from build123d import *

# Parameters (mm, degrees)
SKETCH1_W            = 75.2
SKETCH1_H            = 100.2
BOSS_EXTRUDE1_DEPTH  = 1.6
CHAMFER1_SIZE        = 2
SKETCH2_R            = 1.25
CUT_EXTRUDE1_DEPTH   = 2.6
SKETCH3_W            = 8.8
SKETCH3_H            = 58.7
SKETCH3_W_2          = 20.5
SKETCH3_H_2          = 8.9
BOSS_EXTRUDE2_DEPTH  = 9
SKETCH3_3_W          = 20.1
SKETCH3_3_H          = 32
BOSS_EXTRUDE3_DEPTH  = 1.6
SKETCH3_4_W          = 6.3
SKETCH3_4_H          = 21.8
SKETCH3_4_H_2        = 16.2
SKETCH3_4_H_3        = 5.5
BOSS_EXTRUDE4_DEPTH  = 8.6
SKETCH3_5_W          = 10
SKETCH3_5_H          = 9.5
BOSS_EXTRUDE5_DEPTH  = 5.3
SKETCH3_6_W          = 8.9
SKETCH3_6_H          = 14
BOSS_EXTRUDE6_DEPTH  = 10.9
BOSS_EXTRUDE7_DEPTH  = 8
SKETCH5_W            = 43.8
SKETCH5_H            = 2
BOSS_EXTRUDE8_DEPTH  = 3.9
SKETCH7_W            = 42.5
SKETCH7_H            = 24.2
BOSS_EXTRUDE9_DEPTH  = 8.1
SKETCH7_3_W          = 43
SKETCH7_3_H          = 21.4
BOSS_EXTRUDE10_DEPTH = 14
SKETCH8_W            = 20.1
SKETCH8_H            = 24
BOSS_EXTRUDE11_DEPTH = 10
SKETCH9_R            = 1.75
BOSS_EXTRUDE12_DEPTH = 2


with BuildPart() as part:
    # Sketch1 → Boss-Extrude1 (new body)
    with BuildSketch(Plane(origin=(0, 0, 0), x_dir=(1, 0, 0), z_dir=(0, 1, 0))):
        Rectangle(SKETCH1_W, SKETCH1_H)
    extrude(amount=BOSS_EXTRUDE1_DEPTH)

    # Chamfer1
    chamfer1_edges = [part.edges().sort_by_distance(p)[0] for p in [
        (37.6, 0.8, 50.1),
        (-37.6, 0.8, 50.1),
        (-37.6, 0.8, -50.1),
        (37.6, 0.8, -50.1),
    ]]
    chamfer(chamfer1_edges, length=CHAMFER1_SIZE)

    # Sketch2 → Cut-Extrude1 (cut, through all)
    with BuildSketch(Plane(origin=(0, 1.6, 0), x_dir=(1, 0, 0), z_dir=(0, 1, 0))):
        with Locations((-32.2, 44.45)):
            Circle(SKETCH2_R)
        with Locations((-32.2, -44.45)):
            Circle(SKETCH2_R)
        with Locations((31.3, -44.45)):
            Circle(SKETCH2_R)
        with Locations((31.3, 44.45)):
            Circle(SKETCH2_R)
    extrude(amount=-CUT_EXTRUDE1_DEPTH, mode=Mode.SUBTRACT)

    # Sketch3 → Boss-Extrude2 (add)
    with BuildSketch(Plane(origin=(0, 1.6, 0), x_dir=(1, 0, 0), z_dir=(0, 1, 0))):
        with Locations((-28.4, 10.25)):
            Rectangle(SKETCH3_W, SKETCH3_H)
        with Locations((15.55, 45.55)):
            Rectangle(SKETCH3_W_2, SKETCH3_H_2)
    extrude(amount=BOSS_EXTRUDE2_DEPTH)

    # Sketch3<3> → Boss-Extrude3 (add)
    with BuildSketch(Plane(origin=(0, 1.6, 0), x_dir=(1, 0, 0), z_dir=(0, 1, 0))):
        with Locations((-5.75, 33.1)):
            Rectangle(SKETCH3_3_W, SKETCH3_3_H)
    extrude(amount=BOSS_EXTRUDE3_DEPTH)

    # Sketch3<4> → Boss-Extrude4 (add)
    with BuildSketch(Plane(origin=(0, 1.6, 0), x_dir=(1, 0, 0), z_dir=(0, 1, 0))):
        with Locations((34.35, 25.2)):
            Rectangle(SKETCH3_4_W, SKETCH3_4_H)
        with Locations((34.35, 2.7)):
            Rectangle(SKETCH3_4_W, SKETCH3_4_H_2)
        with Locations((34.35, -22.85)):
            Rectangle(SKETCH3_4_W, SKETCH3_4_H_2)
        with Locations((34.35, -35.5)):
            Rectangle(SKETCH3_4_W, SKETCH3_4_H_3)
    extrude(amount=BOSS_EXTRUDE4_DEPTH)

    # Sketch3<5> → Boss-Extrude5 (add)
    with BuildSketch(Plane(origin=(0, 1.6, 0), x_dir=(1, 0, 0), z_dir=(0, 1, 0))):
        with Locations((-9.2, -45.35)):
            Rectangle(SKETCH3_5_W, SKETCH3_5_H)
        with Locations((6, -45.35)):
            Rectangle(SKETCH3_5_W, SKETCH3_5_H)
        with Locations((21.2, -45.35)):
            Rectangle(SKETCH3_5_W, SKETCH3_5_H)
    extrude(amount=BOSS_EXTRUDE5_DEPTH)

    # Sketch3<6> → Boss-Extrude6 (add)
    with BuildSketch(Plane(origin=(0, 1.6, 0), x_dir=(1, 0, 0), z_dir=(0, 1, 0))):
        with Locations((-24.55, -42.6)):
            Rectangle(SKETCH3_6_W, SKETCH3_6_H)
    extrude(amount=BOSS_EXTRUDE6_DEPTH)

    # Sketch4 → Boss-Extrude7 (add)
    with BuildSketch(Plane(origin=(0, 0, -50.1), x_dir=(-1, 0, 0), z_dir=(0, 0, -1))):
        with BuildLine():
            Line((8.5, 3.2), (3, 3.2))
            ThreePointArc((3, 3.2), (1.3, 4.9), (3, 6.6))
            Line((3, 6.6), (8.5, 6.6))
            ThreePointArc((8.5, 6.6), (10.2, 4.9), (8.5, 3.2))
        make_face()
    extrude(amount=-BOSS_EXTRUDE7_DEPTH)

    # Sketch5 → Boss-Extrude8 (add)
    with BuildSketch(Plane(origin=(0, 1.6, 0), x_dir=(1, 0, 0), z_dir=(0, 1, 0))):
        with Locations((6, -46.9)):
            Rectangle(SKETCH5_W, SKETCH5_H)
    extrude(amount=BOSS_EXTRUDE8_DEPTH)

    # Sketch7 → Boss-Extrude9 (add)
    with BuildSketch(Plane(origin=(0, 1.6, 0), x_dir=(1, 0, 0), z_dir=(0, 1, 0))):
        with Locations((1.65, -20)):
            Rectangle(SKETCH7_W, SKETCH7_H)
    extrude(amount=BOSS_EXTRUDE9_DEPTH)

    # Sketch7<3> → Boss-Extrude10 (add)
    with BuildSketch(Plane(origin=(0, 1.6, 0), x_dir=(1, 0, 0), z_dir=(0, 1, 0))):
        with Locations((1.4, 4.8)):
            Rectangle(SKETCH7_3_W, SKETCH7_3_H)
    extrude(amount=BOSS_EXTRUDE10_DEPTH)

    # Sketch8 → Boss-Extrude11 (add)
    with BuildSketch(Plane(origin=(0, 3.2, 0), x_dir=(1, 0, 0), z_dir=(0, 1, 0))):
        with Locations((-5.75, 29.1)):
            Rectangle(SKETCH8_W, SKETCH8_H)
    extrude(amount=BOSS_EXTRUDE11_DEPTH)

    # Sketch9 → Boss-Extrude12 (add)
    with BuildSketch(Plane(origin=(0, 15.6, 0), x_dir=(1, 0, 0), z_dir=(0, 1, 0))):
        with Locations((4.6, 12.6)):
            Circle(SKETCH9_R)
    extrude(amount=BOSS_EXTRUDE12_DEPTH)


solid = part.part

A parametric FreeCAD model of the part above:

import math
import FreeCAD as App
import Part
import Sketcher

V = App.Vector
Q = App.Units.Quantity


def edges_at(feature, points):
    """Names of the edges that pass closest to the given points."""
    edges = feature.Shape.Edges
    near = lambda p: min(range(len(edges)), key=lambda i: edges[i].distToShape(Part.Vertex(*p))[0])
    return sorted({f"Edge{near(p) + 1}" for p in points})

doc = App.newDocument("Part")
body = doc.addObject("PartDesign::Body", "Body")

sketch1 = doc.addObject("Sketcher::SketchObject", "Sketch")
body.addObject(sketch1)
sketch1.AttachmentSupport = (doc.XZ_Plane, [""])
sketch1.MapMode = "FlatFace"
sketch1.addGeometry([
    Part.LineSegment(V(-38, -50, 0), V(-38, 50, 0)),
    Part.LineSegment(V(-38, 50, 0), V(38, 50, 0)),
    Part.LineSegment(V(38, 50, 0), V(38, -50, 0)),
    Part.LineSegment(V(38, -50, 0), V(-38, -50, 0)),
], False)
sketch1.addConstraint([
    Sketcher.Constraint("Coincident", 0, 2, 1, 1),
    Sketcher.Constraint("Coincident", 1, 2, 2, 1),
    Sketcher.Constraint("Coincident", 2, 2, 3, 1),
    Sketcher.Constraint("Coincident", 3, 2, 0, 1),
    Sketcher.Constraint("Vertical", 0),
    Sketcher.Constraint("Horizontal", 1),
    Sketcher.Constraint("Vertical", 2),
    Sketcher.Constraint("Horizontal", 3),
    Sketcher.Constraint("Symmetric", 0, 2, 2, 2, -1, 1),
    Sketcher.Constraint("DistanceX", 1, 1, 1, 2, Q("75.2 mm")),
    Sketcher.Constraint("DistanceY", 0, 1, 0, 2, Q("100.2 mm")),
])
pad1 = doc.addObject("PartDesign::Pad", "Pad")
body.addObject(pad1)
pad1.Profile = sketch1
pad1.Length = 1.6
pad1.Reversed = True
doc.recompute()

chamfer = doc.addObject("PartDesign::Chamfer", "Chamfer")
body.addObject(chamfer)
chamfer.Base = (pad1, edges_at(pad1, [
    (37.6, 0.8, 50.1),
    (-37.6, 0.8, 50.1),
    (-37.6, 0.8, -50.1),
    (37.6, 0.8, -50.1),
]))
chamfer.Size = 2

sketch2 = doc.addObject("Sketcher::SketchObject", "Sketch001")
body.addObject(sketch2)
sketch2.AttachmentSupport = (doc.XZ_Plane, [""])
sketch2.MapMode = "FlatFace"
sketch2.AttachmentOffset = App.Placement(V(0, 0, -1.6), App.Rotation())
sketch2.addGeometry([
    Part.Circle(V(-32.2, -44.5, 0), V(0, 0, 1), 1.2),
    Part.Circle(V(-32.2, 44.5, 0), V(0, 0, 1), 1.2),
    Part.Circle(V(31.3, 44.5, 0), V(0, 0, 1), 1.2),
    Part.Circle(V(31.3, -44.5, 0), V(0, 0, 1), 1.2),
], False)
sketch2.addConstraint([
    Sketcher.Constraint("Equal", 0, 1),
    Sketcher.Constraint("Equal", 1, 2),
    Sketcher.Constraint("Equal", 2, 3),
    Sketcher.Constraint("Symmetric", 0, 3, 1, 3, -1),
    Sketcher.Constraint("Symmetric", 2, 3, 3, 3, -1),
    Sketcher.Constraint("Horizontal", 1, 3, 2, 3),
    Sketcher.Constraint("Diameter", 0, Q("2.5 mm")),
    Sketcher.Constraint("DistanceX", 0, 3, -1, 1, Q("32.2 mm")),
    Sketcher.Constraint("DistanceX", -1, 1, 2, 3, Q("31.3 mm")),
    Sketcher.Constraint("DistanceY", 0, 3, 1, 3, Q("88.9 mm")),
])
pocket1 = doc.addObject("PartDesign::Pocket", "Pocket")
body.addObject(pocket1)
pocket1.Profile = sketch2
pocket1.Type = "ThroughAll"
pocket1.Reversed = True

sketch3 = doc.addObject("Sketcher::SketchObject", "Sketch002")
body.addObject(sketch3)
sketch3.AttachmentSupport = (doc.XZ_Plane, [""])
sketch3.MapMode = "FlatFace"
sketch3.AttachmentOffset = App.Placement(V(0, 0, -1.6), App.Rotation())
sketch3.addGeometry([
    Part.LineSegment(V(-33, -40, 0), V(-33, 19, 0)),
    Part.LineSegment(V(-33, 19, 0), V(-24, 19, 0)),
    Part.LineSegment(V(-24, 19, 0), V(-24, -40, 0)),
    Part.LineSegment(V(-24, -40, 0), V(-33, -40, 0)),
    Part.LineSegment(V(5, -50, 0), V(5, -41, 0)),
    Part.LineSegment(V(5, -41, 0), V(26, -41, 0)),
    Part.LineSegment(V(26, -41, 0), V(26, -50, 0)),
    Part.LineSegment(V(26, -50, 0), V(5, -50, 0)),
], False)
sketch3.addConstraint([
    Sketcher.Constraint("Coincident", 0, 2, 1, 1),
    Sketcher.Constraint("Coincident", 1, 2, 2, 1),
    Sketcher.Constraint("Coincident", 2, 2, 3, 1),
    Sketcher.Constraint("Coincident", 3, 2, 0, 1),
    Sketcher.Constraint("Coincident", 4, 2, 5, 1),
    Sketcher.Constraint("Coincident", 5, 2, 6, 1),
    Sketcher.Constraint("Coincident", 6, 2, 7, 1),
    Sketcher.Constraint("Coincident", 7, 2, 4, 1),
    Sketcher.Constraint("Vertical", 0),
    Sketcher.Constraint("Horizontal", 1),
    Sketcher.Constraint("Vertical", 2),
    Sketcher.Constraint("Horizontal", 3),
    Sketcher.Constraint("Vertical", 4),
    Sketcher.Constraint("Horizontal", 5),
    Sketcher.Constraint("Vertical", 6),
    Sketcher.Constraint("Horizontal", 7),
    Sketcher.Constraint("DistanceX", 1, 1, 1, 2, Q("8.8 mm")),
    Sketcher.Constraint("DistanceX", 5, 1, 5, 2, Q("20.5 mm")),
    Sketcher.Constraint("DistanceY", 0, 1, 0, 2, Q("58.7 mm")),
    Sketcher.Constraint("DistanceY", 4, 1, 4, 2, Q("8.9 mm")),
    Sketcher.Constraint("DistanceX", 1, 2, -1, 1, Q("24 mm")),
    Sketcher.Constraint("DistanceY", 6, 2, -1, 1, Q("50 mm")),
    Sketcher.Constraint("DistanceY", -1, 1, 0, 2, Q("19.1 mm")),
    Sketcher.Constraint("DistanceX", -1, 1, 4, 2, Q("5.3 mm")),
])
pad2 = doc.addObject("PartDesign::Pad", "Pad001")
body.addObject(pad2)
pad2.Profile = sketch3
pad2.Length = 9
pad2.Reversed = True

sketch4 = doc.addObject("Sketcher::SketchObject", "Sketch003")
body.addObject(sketch4)
sketch4.AttachmentSupport = (doc.XZ_Plane, [""])
sketch4.MapMode = "FlatFace"
sketch4.AttachmentOffset = App.Placement(V(0, 0, -1.6), App.Rotation())
sketch4.addGeometry([
    Part.LineSegment(V(-16, -49, 0), V(-16, -17, 0)),
    Part.LineSegment(V(-16, -17, 0), V(4, -17, 0)),
    Part.LineSegment(V(4, -17, 0), V(4, -49, 0)),
    Part.LineSegment(V(4, -49, 0), V(-16, -49, 0)),
], False)
sketch4.addConstraint([
    Sketcher.Constraint("Coincident", 0, 2, 1, 1),
    Sketcher.Constraint("Coincident", 1, 2, 2, 1),
    Sketcher.Constraint("Coincident", 2, 2, 3, 1),
    Sketcher.Constraint("Coincident", 3, 2, 0, 1),
    Sketcher.Constraint("Vertical", 0),
    Sketcher.Constraint("Horizontal", 1),
    Sketcher.Constraint("Vertical", 2),
    Sketcher.Constraint("Horizontal", 3),
    Sketcher.Constraint("DistanceY", 0, 1, 0, 2, Q("32 mm")),
    Sketcher.Constraint("DistanceX", 1, 1, 1, 2, Q("20.1 mm")),
    Sketcher.Constraint("DistanceX", 0, 2, -1, 1, Q("15.8 mm")),
    Sketcher.Constraint("DistanceY", 0, 2, -1, 1, Q("17.1 mm")),
])
pad3 = doc.addObject("PartDesign::Pad", "Pad002")
body.addObject(pad3)
pad3.Profile = sketch4
pad3.Length = 1.6
pad3.Reversed = True

sketch5 = doc.addObject("Sketcher::SketchObject", "Sketch004")
body.addObject(sketch5)
sketch5.AttachmentSupport = (doc.XZ_Plane, [""])
sketch5.MapMode = "FlatFace"
sketch5.AttachmentOffset = App.Placement(V(0, 0, -1.6), App.Rotation())
sketch5.addGeometry([
    Part.LineSegment(V(31, -36, 0), V(31, -14, 0)),
    Part.LineSegment(V(31, -14, 0), V(38, -14, 0)),
    Part.LineSegment(V(38, -14, 0), V(38, -36, 0)),
    Part.LineSegment(V(38, -36, 0), V(31, -36, 0)),
    Part.LineSegment(V(31, -11, 0), V(31, 5, 0)),
    Part.LineSegment(V(31, 5, 0), V(38, 5, 0)),
    Part.LineSegment(V(38, 5, 0), V(38, -11, 0)),
    Part.LineSegment(V(38, -11, 0), V(31, -11, 0)),
    Part.LineSegment(V(31, 15, 0), V(31, 31, 0)),
    Part.LineSegment(V(31, 31, 0), V(38, 31, 0)),
    Part.LineSegment(V(38, 31, 0), V(38, 15, 0)),
    Part.LineSegment(V(38, 15, 0), V(31, 15, 0)),
    Part.LineSegment(V(31, 33, 0), V(31, 38, 0)),
    Part.LineSegment(V(31, 38, 0), V(38, 38, 0)),
    Part.LineSegment(V(38, 38, 0), V(38, 33, 0)),
    Part.LineSegment(V(38, 33, 0), V(31, 33, 0)),
], False)
sketch5.addConstraint([
    Sketcher.Constraint("Coincident", 0, 2, 1, 1),
    Sketcher.Constraint("Coincident", 1, 2, 2, 1),
    Sketcher.Constraint("Coincident", 2, 2, 3, 1),
    Sketcher.Constraint("Coincident", 3, 2, 0, 1),
    Sketcher.Constraint("Coincident", 4, 2, 5, 1),
    Sketcher.Constraint("Coincident", 5, 2, 6, 1),
    Sketcher.Constraint("Coincident", 6, 2, 7, 1),
    Sketcher.Constraint("Coincident", 7, 2, 4, 1),
    Sketcher.Constraint("Coincident", 8, 2, 9, 1),
    Sketcher.Constraint("Coincident", 9, 2, 10, 1),
    Sketcher.Constraint("Coincident", 10, 2, 11, 1),
    Sketcher.Constraint("Coincident", 11, 2, 8, 1),
    Sketcher.Constraint("Coincident", 12, 2, 13, 1),
    Sketcher.Constraint("Coincident", 13, 2, 14, 1),
    Sketcher.Constraint("Coincident", 14, 2, 15, 1),
    Sketcher.Constraint("Coincident", 15, 2, 12, 1),
    Sketcher.Constraint("Vertical", 0),
    Sketcher.Constraint("Horizontal", 1),
    Sketcher.Constraint("Vertical", 2),
    Sketcher.Constraint("Horizontal", 3),
    Sketcher.Constraint("Vertical", 4),
    Sketcher.Constraint("Horizontal", 5),
    Sketcher.Constraint("Vertical", 6),
    Sketcher.Constraint("Horizontal", 7),
    Sketcher.Constraint("Vertical", 8),
    Sketcher.Constraint("Horizontal", 9),
    Sketcher.Constraint("Vertical", 10),
    Sketcher.Constraint("Horizontal", 11),
    Sketcher.Constraint("Vertical", 12),
    Sketcher.Constraint("Horizontal", 13),
    Sketcher.Constraint("Vertical", 14),
    Sketcher.Constraint("Horizontal", 15),
    Sketcher.Constraint("Vertical", 3, 2, 4, 2),
    Sketcher.Constraint("Vertical", 2, 2, 5, 2),
    Sketcher.Constraint("Vertical", 7, 2, 8, 2),
    Sketcher.Constraint("Vertical", 6, 2, 9, 2),
    Sketcher.Constraint("Vertical", 11, 2, 12, 2),
    Sketcher.Constraint("Vertical", 10, 2, 13, 2),
    Sketcher.Constraint("Equal", 6, 8),
    Sketcher.Constraint("DistanceX", 1, 1, 1, 2, Q("6.3 mm")),
    Sketcher.Constraint("DistanceY", 0, 1, 0, 2, Q("21.8 mm")),
    Sketcher.Constraint("DistanceY", 4, 1, 4, 2, Q("16.2 mm")),
    Sketcher.Constraint("DistanceY", 12, 1, 12, 2, Q("5.5 mm")),
    Sketcher.Constraint("DistanceY", 10, 2, 14, 2, Q("18 mm")),
    Sketcher.Constraint("DistanceX", -1, 1, 0, 2, Q("31.2 mm")),
    Sketcher.Constraint("DistanceY", 0, 2, -1, 1, Q("14.3 mm")),
    Sketcher.Constraint("DistanceY", -1, 1, 4, 2, Q("5.4 mm")),
    Sketcher.Constraint("DistanceY", -1, 1, 8, 2, Q("30.95 mm")),
])
pad4 = doc.addObject("PartDesign::Pad", "Pad003")
body.addObject(pad4)
pad4.Profile = sketch5
pad4.Length = 8.6
pad4.Reversed = True

sketch6 = doc.addObject("Sketcher::SketchObject", "Sketch005")
body.addObject(sketch6)
sketch6.AttachmentSupport = (doc.XZ_Plane, [""])
sketch6.MapMode = "FlatFace"
sketch6.AttachmentOffset = App.Placement(V(0, 0, -1.6), App.Rotation())
sketch6.addGeometry([
    Part.LineSegment(V(-14, 41, 0), V(-14, 50, 0)),
    Part.LineSegment(V(-14, 50, 0), V(-4, 50, 0)),
    Part.LineSegment(V(-4, 50, 0), V(-4, 41, 0)),
    Part.LineSegment(V(-4, 41, 0), V(-14, 41, 0)),
    Part.LineSegment(V(1, 41, 0), V(1, 50, 0)),
    Part.LineSegment(V(1, 50, 0), V(11, 50, 0)),
    Part.LineSegment(V(11, 50, 0), V(11, 41, 0)),
    Part.LineSegment(V(11, 41, 0), V(1, 41, 0)),
    Part.LineSegment(V(16, 41, 0), V(16, 50, 0)),
    Part.LineSegment(V(16, 50, 0), V(26, 50, 0)),
    Part.LineSegment(V(26, 50, 0), V(26, 41, 0)),
    Part.LineSegment(V(26, 41, 0), V(16, 41, 0)),
], False)
sketch6.addConstraint([
    Sketcher.Constraint("Coincident", 0, 2, 1, 1),
    Sketcher.Constraint("Coincident", 1, 2, 2, 1),
    Sketcher.Constraint("Coincident", 2, 2, 3, 1),
    Sketcher.Constraint("Coincident", 3, 2, 0, 1),
    Sketcher.Constraint("Coincident", 4, 2, 5, 1),
    Sketcher.Constraint("Coincident", 5, 2, 6, 1),
    Sketcher.Constraint("Coincident", 6, 2, 7, 1),
    Sketcher.Constraint("Coincident", 7, 2, 4, 1),
    Sketcher.Constraint("Coincident", 8, 2, 9, 1),
    Sketcher.Constraint("Coincident", 9, 2, 10, 1),
    Sketcher.Constraint("Coincident", 10, 2, 11, 1),
    Sketcher.Constraint("Coincident", 11, 2, 8, 1),
    Sketcher.Constraint("Vertical", 0),
    Sketcher.Constraint("Horizontal", 1),
    Sketcher.Constraint("Vertical", 2),
    Sketcher.Constraint("Horizontal", 3),
    Sketcher.Constraint("Vertical", 4),
    Sketcher.Constraint("Horizontal", 5),
    Sketcher.Constraint("Vertical", 6),
    Sketcher.Constraint("Horizontal", 7),
    Sketcher.Constraint("Vertical", 8),
    Sketcher.Constraint("Horizontal", 9),
    Sketcher.Constraint("Vertical", 10),
    Sketcher.Constraint("Horizontal", 11),
    Sketcher.Constraint("Horizontal", 1, 2, 4, 2),
    Sketcher.Constraint("Horizontal", 3, 2, 6, 2),
    Sketcher.Constraint("Horizontal", 5, 2, 8, 2),
    Sketcher.Constraint("Horizontal", 7, 2, 10, 2),
    Sketcher.Constraint("Equal", 3, 5),
    Sketcher.Constraint("Equal", 7, 9),
    Sketcher.Constraint("DistanceX", 1, 1, 1, 2, Q("10 mm")),
    Sketcher.Constraint("DistanceY", 0, 1, 0, 2, Q("9.5 mm")),
    Sketcher.Constraint("DistanceX", -1, 1, 4, 2, Q("1 mm")),
    Sketcher.Constraint("DistanceX", 0, 2, -1, 1, Q("14.2 mm")),
    Sketcher.Constraint("DistanceY", -1, 1, 0, 2, Q("50.1 mm")),
    Sketcher.Constraint("DistanceX", -1, 1, 8, 2, Q("16.2 mm")),
])
pad5 = doc.addObject("PartDesign::Pad", "Pad004")
body.addObject(pad5)
pad5.Profile = sketch6
pad5.Length = 5.3
pad5.Reversed = True

sketch7 = doc.addObject("Sketcher::SketchObject", "Sketch006")
body.addObject(sketch7)
sketch7.AttachmentSupport = (doc.XZ_Plane, [""])
sketch7.MapMode = "FlatFace"
sketch7.AttachmentOffset = App.Placement(V(0, 0, -1.6), App.Rotation())
sketch7.addGeometry([
    Part.LineSegment(V(-29, 36, 0), V(-29, 50, 0)),
    Part.LineSegment(V(-29, 50, 0), V(-20, 50, 0)),
    Part.LineSegment(V(-20, 50, 0), V(-20, 36, 0)),
    Part.LineSegment(V(-20, 36, 0), V(-29, 36, 0)),
], False)
sketch7.addConstraint([
    Sketcher.Constraint("Coincident", 0, 2, 1, 1),
    Sketcher.Constraint("Coincident", 1, 2, 2, 1),
    Sketcher.Constraint("Coincident", 2, 2, 3, 1),
    Sketcher.Constraint("Coincident", 3, 2, 0, 1),
    Sketcher.Constraint("Vertical", 0),
    Sketcher.Constraint("Horizontal", 1),
    Sketcher.Constraint("Vertical", 2),
    Sketcher.Constraint("Horizontal", 3),
    Sketcher.Constraint("DistanceY", 0, 1, 0, 2, Q("14 mm")),
    Sketcher.Constraint("DistanceX", 1, 1, 1, 2, Q("8.9 mm")),
    Sketcher.Constraint("DistanceX", 0, 2, -1, 1, Q("29 mm")),
    Sketcher.Constraint("DistanceY", -1, 1, 0, 2, Q("49.6 mm")),
])
pad6 = doc.addObject("PartDesign::Pad", "Pad005")
body.addObject(pad6)
pad6.Profile = sketch7
pad6.Length = 10.9
pad6.Reversed = True

sketch8 = doc.addObject("Sketcher::SketchObject", "Sketch007")
body.addObject(sketch8)
sketch8.AttachmentSupport = (doc.XY_Plane, [""])
sketch8.MapMode = "FlatFace"
sketch8.AttachmentOffset = App.Placement(V(0, 0, -50.1), App.Rotation())
sketch8.addGeometry([
    Part.LineSegment(V(-3, 3.2, 0), V(-8.5, 3.2, 0)),
    Part.ArcOfCircle(Part.Circle(V(-8.5, 4.9, 0), V(0, 0, 1), 1.7), math.radians(90), math.radians(270)),
    Part.LineSegment(V(-8.5, 6.6, 0), V(-3, 6.6, 0)),
    Part.ArcOfCircle(Part.Circle(V(-3, 4.9, 0), V(0, 0, 1), 1.7), math.radians(-90), math.radians(90)),
], False)
sketch8.addConstraint([
    Sketcher.Constraint("Tangent", 0, 2, 1, 2),
    Sketcher.Constraint("Tangent", 1, 1, 2, 1),
    Sketcher.Constraint("Tangent", 2, 2, 3, 2),
    Sketcher.Constraint("Tangent", 3, 1, 0, 1),
    Sketcher.Constraint("Horizontal", 0),
    Sketcher.Constraint("Horizontal", 2),
    Sketcher.Constraint("Radius", 1, Q("1.7 mm")),
    Sketcher.Constraint("DistanceX", 0, 2, 0, 1, Q("5.5 mm")),
    Sketcher.Constraint("DistanceX", 3, 3, -1, 1, Q("3 mm")),
    Sketcher.Constraint("DistanceY", -1, 1, 1, 3, Q("4.9 mm")),
])
pad7 = doc.addObject("PartDesign::Pad", "Pad006")
body.addObject(pad7)
pad7.Profile = sketch8
pad7.Length = 8

sketch9 = doc.addObject("Sketcher::SketchObject", "Sketch008")
body.addObject(sketch9)
sketch9.AttachmentSupport = (doc.XZ_Plane, [""])
sketch9.MapMode = "FlatFace"
sketch9.AttachmentOffset = App.Placement(V(0, 0, -1.6), App.Rotation())
sketch9.addGeometry([
    Part.LineSegment(V(-15.9, 45.9, 0), V(-15.9, 47.9, 0)),
    Part.LineSegment(V(-15.9, 47.9, 0), V(27.9, 47.9, 0)),
    Part.LineSegment(V(27.9, 47.9, 0), V(27.9, 45.9, 0)),
    Part.LineSegment(V(27.9, 45.9, 0), V(-15.9, 45.9, 0)),
], False)
sketch9.addConstraint([
    Sketcher.Constraint("Coincident", 0, 2, 1, 1),
    Sketcher.Constraint("Coincident", 1, 2, 2, 1),
    Sketcher.Constraint("Coincident", 2, 2, 3, 1),
    Sketcher.Constraint("Coincident", 3, 2, 0, 1),
    Sketcher.Constraint("Vertical", 0),
    Sketcher.Constraint("Horizontal", 1),
    Sketcher.Constraint("Vertical", 2),
    Sketcher.Constraint("Horizontal", 3),
    Sketcher.Constraint("DistanceY", 0, 1, 0, 2, Q("2 mm")),
    Sketcher.Constraint("DistanceX", 1, 1, 1, 2, Q("43.8 mm")),
    Sketcher.Constraint("DistanceX", 0, 2, -1, 1, Q("15.9 mm")),
    Sketcher.Constraint("DistanceY", -1, 1, 0, 2, Q("47.9 mm")),
])
pad8 = doc.addObject("PartDesign::Pad", "Pad007")
body.addObject(pad8)
pad8.Profile = sketch9
pad8.Length = 3.9
pad8.Reversed = True

sketch10 = doc.addObject("Sketcher::SketchObject", "Sketch009")
body.addObject(sketch10)
sketch10.AttachmentSupport = (doc.XZ_Plane, [""])
sketch10.MapMode = "FlatFace"
sketch10.AttachmentOffset = App.Placement(V(0, 0, -1.6), App.Rotation())
sketch10.addGeometry([
    Part.LineSegment(V(-20, 8, 0), V(-20, 32, 0)),
    Part.LineSegment(V(-20, 32, 0), V(23, 32, 0)),
    Part.LineSegment(V(23, 32, 0), V(23, 8, 0)),
    Part.LineSegment(V(23, 8, 0), V(-20, 8, 0)),
], False)
sketch10.addConstraint([
    Sketcher.Constraint("Coincident", 0, 2, 1, 1),
    Sketcher.Constraint("Coincident", 1, 2, 2, 1),
    Sketcher.Constraint("Coincident", 2, 2, 3, 1),
    Sketcher.Constraint("Coincident", 3, 2, 0, 1),
    Sketcher.Constraint("Vertical", 0),
    Sketcher.Constraint("Horizontal", 1),
    Sketcher.Constraint("Vertical", 2),
    Sketcher.Constraint("Horizontal", 3),
    Sketcher.Constraint("DistanceX", 1, 1, 1, 2, Q("42.5 mm")),
    Sketcher.Constraint("DistanceY", 0, 1, 0, 2, Q("24.2 mm")),
    Sketcher.Constraint("DistanceX", 0, 2, -1, 1, Q("19.6 mm")),
    Sketcher.Constraint("DistanceY", -1, 1, 0, 2, Q("32.1 mm")),
])
pad9 = doc.addObject("PartDesign::Pad", "Pad008")
body.addObject(pad9)
pad9.Profile = sketch10
pad9.Length = 8.1
pad9.Reversed = True

sketch11 = doc.addObject("Sketcher::SketchObject", "Sketch010")
body.addObject(sketch11)
sketch11.AttachmentSupport = (doc.XZ_Plane, [""])
sketch11.MapMode = "FlatFace"
sketch11.AttachmentOffset = App.Placement(V(0, 0, -1.6), App.Rotation())
sketch11.addGeometry([
    Part.LineSegment(V(-20, -16, 0), V(-20, 6, 0)),
    Part.LineSegment(V(-20, 6, 0), V(23, 6, 0)),
    Part.LineSegment(V(23, 6, 0), V(23, -16, 0)),
    Part.LineSegment(V(23, -16, 0), V(-20, -16, 0)),
], False)
sketch11.addConstraint([
    Sketcher.Constraint("Coincident", 0, 2, 1, 1),
    Sketcher.Constraint("Coincident", 1, 2, 2, 1),
    Sketcher.Constraint("Coincident", 2, 2, 3, 1),
    Sketcher.Constraint("Coincident", 3, 2, 0, 1),
    Sketcher.Constraint("Vertical", 0),
    Sketcher.Constraint("Horizontal", 1),
    Sketcher.Constraint("Vertical", 2),
    Sketcher.Constraint("Horizontal", 3),
    Sketcher.Constraint("DistanceX", 1, 1, 1, 2, Q("43 mm")),
    Sketcher.Constraint("DistanceY", 0, 1, 0, 2, Q("21.4 mm")),
    Sketcher.Constraint("DistanceX", 0, 2, -1, 1, Q("20.1 mm")),
    Sketcher.Constraint("DistanceY", -1, 1, 0, 2, Q("5.9 mm")),
])
pad10 = doc.addObject("PartDesign::Pad", "Pad009")
body.addObject(pad10)
pad10.Profile = sketch11
pad10.Length = 14
pad10.Reversed = True

sketch12 = doc.addObject("Sketcher::SketchObject", "Sketch011")
body.addObject(sketch12)
sketch12.AttachmentSupport = (doc.XZ_Plane, [""])
sketch12.MapMode = "FlatFace"
sketch12.AttachmentOffset = App.Placement(V(0, 0, -3.2), App.Rotation())
sketch12.addGeometry([
    Part.LineSegment(V(-16, -41, 0), V(-16, -17, 0)),
    Part.LineSegment(V(-16, -17, 0), V(4, -17, 0)),
    Part.LineSegment(V(4, -17, 0), V(4, -41, 0)),
    Part.LineSegment(V(4, -41, 0), V(-16, -41, 0)),
], False)
sketch12.addConstraint([
    Sketcher.Constraint("Coincident", 0, 2, 1, 1),
    Sketcher.Constraint("Coincident", 1, 2, 2, 1),
    Sketcher.Constraint("Coincident", 2, 2, 3, 1),
    Sketcher.Constraint("Coincident", 3, 2, 0, 1),
    Sketcher.Constraint("Vertical", 0),
    Sketcher.Constraint("Horizontal", 1),
    Sketcher.Constraint("Vertical", 2),
    Sketcher.Constraint("Horizontal", 3),
    Sketcher.Constraint("DistanceY", 0, 1, 0, 2, Q("24 mm")),
    Sketcher.Constraint("DistanceX", 1, 1, 1, 2, Q("20.1 mm")),
    Sketcher.Constraint("DistanceX", 0, 2, -1, 1, Q("15.8 mm")),
    Sketcher.Constraint("DistanceY", 0, 2, -1, 1, Q("17.1 mm")),
])
pad11 = doc.addObject("PartDesign::Pad", "Pad010")
body.addObject(pad11)
pad11.Profile = sketch12
pad11.Length = 10
pad11.Reversed = True

sketch13 = doc.addObject("Sketcher::SketchObject", "Sketch012")
body.addObject(sketch13)
sketch13.AttachmentSupport = (doc.XZ_Plane, [""])
sketch13.MapMode = "FlatFace"
sketch13.AttachmentOffset = App.Placement(V(0, 0, -15.6), App.Rotation())
sketch13.addGeometry(Part.Circle(V(4.6, -12.6, 0), V(0, 0, 1), 1.8), False)
sketch13.addConstraint([
    Sketcher.Constraint("Diameter", 0, Q("3.5 mm")),
    Sketcher.Constraint("DistanceX", -1, 1, 0, 3, Q("4.6 mm")),
    Sketcher.Constraint("DistanceY", 0, 3, -1, 1, Q("12.6 mm")),
])
pad12 = doc.addObject("PartDesign::Pad", "Pad011")
body.addObject(pad12)
pad12.Profile = sketch13
pad12.Length = 2
pad12.Reversed = True

doc.recompute()
